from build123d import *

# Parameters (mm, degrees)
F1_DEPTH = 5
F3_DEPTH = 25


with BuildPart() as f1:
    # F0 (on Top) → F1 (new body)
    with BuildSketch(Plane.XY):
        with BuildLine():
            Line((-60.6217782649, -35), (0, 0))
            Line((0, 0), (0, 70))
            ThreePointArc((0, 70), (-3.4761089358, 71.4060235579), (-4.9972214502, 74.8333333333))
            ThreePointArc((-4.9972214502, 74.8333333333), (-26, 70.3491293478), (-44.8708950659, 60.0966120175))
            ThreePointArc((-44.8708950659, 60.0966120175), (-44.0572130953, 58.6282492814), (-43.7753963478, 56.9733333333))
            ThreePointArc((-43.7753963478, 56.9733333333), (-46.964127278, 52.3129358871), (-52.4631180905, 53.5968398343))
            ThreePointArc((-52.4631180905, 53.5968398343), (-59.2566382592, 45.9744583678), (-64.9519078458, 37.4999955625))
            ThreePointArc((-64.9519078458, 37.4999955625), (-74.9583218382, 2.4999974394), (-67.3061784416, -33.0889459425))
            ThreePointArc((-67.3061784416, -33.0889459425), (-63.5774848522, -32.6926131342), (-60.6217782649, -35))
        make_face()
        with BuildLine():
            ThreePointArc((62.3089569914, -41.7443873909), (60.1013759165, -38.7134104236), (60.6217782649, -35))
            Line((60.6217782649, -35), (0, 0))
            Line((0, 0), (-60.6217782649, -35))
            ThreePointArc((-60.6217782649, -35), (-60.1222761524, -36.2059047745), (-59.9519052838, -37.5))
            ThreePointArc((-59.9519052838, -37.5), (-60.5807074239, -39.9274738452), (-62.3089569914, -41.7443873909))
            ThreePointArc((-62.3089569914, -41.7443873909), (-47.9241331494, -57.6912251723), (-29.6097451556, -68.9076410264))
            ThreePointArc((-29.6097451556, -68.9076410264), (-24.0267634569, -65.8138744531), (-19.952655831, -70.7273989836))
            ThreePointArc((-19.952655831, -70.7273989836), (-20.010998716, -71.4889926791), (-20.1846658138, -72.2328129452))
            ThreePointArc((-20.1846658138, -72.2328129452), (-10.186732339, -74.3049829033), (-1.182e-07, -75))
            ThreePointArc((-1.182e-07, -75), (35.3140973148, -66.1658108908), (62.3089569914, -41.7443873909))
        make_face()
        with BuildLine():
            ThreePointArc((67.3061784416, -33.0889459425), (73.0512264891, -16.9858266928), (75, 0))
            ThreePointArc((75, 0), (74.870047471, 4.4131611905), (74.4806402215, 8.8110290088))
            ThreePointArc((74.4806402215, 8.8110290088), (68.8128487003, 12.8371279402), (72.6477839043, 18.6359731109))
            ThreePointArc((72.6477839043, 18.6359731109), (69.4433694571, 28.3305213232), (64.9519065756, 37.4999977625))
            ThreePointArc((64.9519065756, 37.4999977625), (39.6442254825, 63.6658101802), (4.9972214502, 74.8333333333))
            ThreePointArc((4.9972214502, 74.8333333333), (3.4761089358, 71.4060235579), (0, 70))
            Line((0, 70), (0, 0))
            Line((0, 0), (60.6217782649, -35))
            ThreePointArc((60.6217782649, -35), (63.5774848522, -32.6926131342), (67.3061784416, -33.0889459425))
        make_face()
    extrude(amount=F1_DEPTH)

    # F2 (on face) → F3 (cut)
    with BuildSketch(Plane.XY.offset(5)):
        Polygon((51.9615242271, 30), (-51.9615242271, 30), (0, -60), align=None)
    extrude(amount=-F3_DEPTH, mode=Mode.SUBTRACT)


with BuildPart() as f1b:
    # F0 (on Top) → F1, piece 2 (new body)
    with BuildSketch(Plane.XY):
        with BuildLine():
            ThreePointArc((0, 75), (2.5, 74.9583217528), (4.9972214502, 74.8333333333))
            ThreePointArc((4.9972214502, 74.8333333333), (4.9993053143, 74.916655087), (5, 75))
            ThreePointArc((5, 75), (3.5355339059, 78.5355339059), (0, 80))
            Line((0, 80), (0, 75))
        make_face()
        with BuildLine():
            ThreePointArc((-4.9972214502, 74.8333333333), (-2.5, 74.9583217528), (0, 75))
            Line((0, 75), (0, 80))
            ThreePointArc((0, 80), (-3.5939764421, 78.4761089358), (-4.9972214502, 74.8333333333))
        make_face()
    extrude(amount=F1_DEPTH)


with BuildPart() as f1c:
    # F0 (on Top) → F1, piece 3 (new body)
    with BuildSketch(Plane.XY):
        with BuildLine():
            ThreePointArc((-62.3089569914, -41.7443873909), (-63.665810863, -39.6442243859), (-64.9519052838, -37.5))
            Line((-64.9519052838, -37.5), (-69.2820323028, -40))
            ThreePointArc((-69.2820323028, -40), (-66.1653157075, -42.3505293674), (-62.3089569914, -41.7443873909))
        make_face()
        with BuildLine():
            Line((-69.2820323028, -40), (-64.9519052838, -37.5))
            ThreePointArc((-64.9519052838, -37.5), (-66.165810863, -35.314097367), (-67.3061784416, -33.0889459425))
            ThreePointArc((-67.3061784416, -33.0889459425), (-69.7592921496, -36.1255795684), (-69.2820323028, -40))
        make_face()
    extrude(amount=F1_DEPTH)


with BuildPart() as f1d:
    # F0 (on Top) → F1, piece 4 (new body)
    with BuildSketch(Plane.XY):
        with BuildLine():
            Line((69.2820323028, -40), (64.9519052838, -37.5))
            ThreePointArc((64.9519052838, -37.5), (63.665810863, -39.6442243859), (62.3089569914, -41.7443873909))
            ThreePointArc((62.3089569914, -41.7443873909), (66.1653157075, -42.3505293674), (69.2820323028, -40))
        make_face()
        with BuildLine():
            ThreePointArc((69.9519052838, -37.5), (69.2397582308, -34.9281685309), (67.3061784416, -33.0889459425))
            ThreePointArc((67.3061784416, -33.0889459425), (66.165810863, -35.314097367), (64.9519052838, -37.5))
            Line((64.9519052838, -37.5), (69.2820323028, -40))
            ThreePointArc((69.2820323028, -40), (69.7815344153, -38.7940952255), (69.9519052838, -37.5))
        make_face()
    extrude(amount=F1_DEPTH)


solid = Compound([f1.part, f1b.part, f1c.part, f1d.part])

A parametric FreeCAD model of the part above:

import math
import FreeCAD as App
import Part
import Sketcher
from FreeCAD import Vector
Q = App.Units.Quantity

doc = App.newDocument("Part")
body = doc.addObject("PartDesign::Body", "Body")

# Sketch on XY plane
sketch1 = body.newObject("Sketcher::SketchObject", "Sketch")
sketch1.AttachmentSupport = (doc.getObject("XY_Plane"), [""])
sketch1.MapMode = "FlatFace"
sketch1.addGeometry(Part.ArcOfCircle(Part.Circle(Vector(0, 75, 0), Vector(0, 0, 1), 5), math.radians(-178), math.radians(-90)), False)
sketch1.addGeometry(Part.ArcOfCircle(Part.Circle(Vector(0, 0, 0), Vector(0, 0, 1), 75), math.radians(94), math.radians(127)), False)
sketch1.addGeometry(Part.ArcOfCircle(Part.Circle(Vector(-48.8, 57, 0), Vector(0, 0, 1), 5), math.radians(0), math.radians(39)), False)
sketch1.addGeometry(Part.ArcOfCircle(Part.Circle(Vector(-48.8, 57, 0), Vector(0, 0, 1), 5), math.radians(-138), math.radians(0)), False)
sketch1.addGeometry(Part.ArcOfCircle(Part.Circle(Vector(0, 0, 0), Vector(0, 0, 1), 75), math.radians(134.39), math.radians(150)), False)
sketch1.addGeometry(Part.ArcOfCircle(Part.Circle(Vector(0, 0, 0), Vector(0, 0, 1), 75), math.radians(150), math.radians(206)), False)
sketch1.addGeometry(Part.ArcOfCircle(Part.Circle(Vector(-65, -37.5, 0), Vector(0, 0, 1), 5), math.radians(30), math.radians(118)), False)
sketch1.addGeometry(Part.ArcOfCircle(Part.Circle(Vector(-65, -37.5, 0), Vector(0, 0, 1), 5), math.radians(0), math.radians(30)), False)
sketch1.addGeometry(Part.ArcOfCircle(Part.Circle(Vector(-65, -37.5, 0), Vector(0, 0, 1), 5), math.radians(-58), math.radians(0)), False)
sketch1.addGeometry(Part.ArcOfCircle(Part.Circle(Vector(0, 0, 0), Vector(0, 0, 1), 75), math.radians(-146), math.radians(-113)), False)
sketch1.addGeometry(Part.ArcOfCircle(Part.Circle(Vector(-25, -70.7, 0), Vector(0, 0, 1), 5), math.radians(0), math.radians(159)), False)
sketch1.addGeometry(Part.ArcOfCircle(Part.Circle(Vector(-25, -70.7, 0), Vector(0, 0, 1), 5), math.radians(-17.52), math.radians(0)), False)
sketch1.addGeometry(Part.ArcOfCircle(Part.Circle(Vector(0, 0, 0), Vector(0, 0, 1), 75), math.radians(-105.61), math.radians(-90)), False)
sketch1.addGeometry(Part.ArcOfCircle(Part.Circle(Vector(0, 0, 0), Vector(0, 0, 1), 75), math.radians(-90), math.radians(-34)), False)
sketch1.addGeometry(Part.ArcOfCircle(Part.Circle(Vector(65, -37.5, 0), Vector(0, 0, 1), 5), math.radians(150), math.radians(238)), False)
sketch1.addGeometry(Part.ArcOfCircle(Part.Circle(Vector(65, -37.5, 0), Vector(0, 0, 1), 5), math.radians(62), math.radians(150)), False)
sketch1.addGeometry(Part.ArcOfCircle(Part.Circle(Vector(0, 0, 0), Vector(0, 0, 1), 75), math.radians(-26), math.radians(0)), False)
sketch1.addGeometry(Part.ArcOfCircle(Part.Circle(Vector(0, 0, 0), Vector(0, 0, 1), 75), math.radians(0), math.radians(6.75)), False)
sketch1.addGeometry(Part.ArcOfCircle(Part.Circle(Vector(73.7, 13.8, 0), Vector(0, 0, 1), 5), math.radians(102), math.radians(279)), False)
sketch1.addGeometry(Part.ArcOfCircle(Part.Circle(Vector(0, 0, 0), Vector(0, 0, 1), 75), math.radians(14.39), math.radians(30)), False)
sketch1.addGeometry(Part.ArcOfCircle(Part.Circle(Vector(0, 0, 0), Vector(0, 0, 1), 75), math.radians(30), math.radians(86)), False)
sketch1.addGeometry(Part.ArcOfCircle(Part.Circle(Vector(0, 75, 0), Vector(0, 0, 1), 5), math.radians(-90), math.radians(-2)), False)
sketch1.addConstraint(Sketcher.Constraint("Coincident", 0, 1, 1, 1))
sketch1.addConstraint(Sketcher.Constraint("Coincident", 1, 2, 2, 2))
sketch1.addConstraint(Sketcher.Constraint("Tangent", 2, 1, 3, 2))
sketch1.addConstraint(Sketcher.Constraint("Coincident", 3, 1, 4, 1))
sketch1.addConstraint(Sketcher.Constraint("Tangent", 4, 2, 5, 1))
sketch1.addConstraint(Sketcher.Constraint("Coincident", 5, 2, 6, 2))
sketch1.addConstraint(Sketcher.Constraint("Tangent", 6, 1, 7, 2))
sketch1.addConstraint(Sketcher.Constraint("Tangent", 7, 1, 8, 2))
sketch1.addConstraint(Sketcher.Constraint("Coincident", 8, 1, 9, 1))
sketch1.addConstraint(Sketcher.Constraint("Coincident", 9, 2, 10, 2))
sketch1.addConstraint(Sketcher.Constraint("Tangent", 10, 1, 11, 2))
sketch1.addConstraint(Sketcher.Constraint("Coincident", 11, 1, 12, 1))
sketch1.addConstraint(Sketcher.Constraint("Tangent", 12, 2, 13, 1))
sketch1.addConstraint(Sketcher.Constraint("Coincident", 13, 2, 14, 2))
sketch1.addConstraint(Sketcher.Constraint("Tangent", 14, 1, 15, 2))
sketch1.addConstraint(Sketcher.Constraint("Coincident", 15, 1, 16, 1))
sketch1.addConstraint(Sketcher.Constraint("Tangent", 16, 2, 17, 1))
sketch1.addConstraint(Sketcher.Constraint("Coincident", 17, 2, 18, 2))
sketch1.addConstraint(Sketcher.Constraint("Coincident", 18, 1, 19, 1))
sketch1.addConstraint(Sketcher.Constraint("Tangent", 19, 2, 20, 1))
sketch1.addConstraint(Sketcher.Constraint("Coincident", 20, 2, 21, 2))
sketch1.addConstraint(Sketcher.Constraint("Tangent", 21, 1, 0, 2))
sketch1.addConstraint(Sketcher.Constraint("Coincident", 1, 3, -1, 1))
sketch1.addConstraint(Sketcher.Constraint("Coincident", 4, 3, -1, 1))
sketch1.addConstraint(Sketcher.Constraint("Coincident", 9, 3, -1, 1))
sketch1.addConstraint(Sketcher.Constraint("Coincident", 12, 3, -1, 1))
sketch1.addConstraint(Sketcher.Constraint("Coincident", 16, 3, -1, 1))
sketch1.addConstraint(Sketcher.Constraint("Coincident", 19, 3, -1, 1))
sketch1.addConstraint(Sketcher.Constraint("Coincident", 8, 3, 6, 3))
sketch1.addConstraint(Sketcher.Constraint("Equal", 0, 2))
sketch1.addConstraint(Sketcher.Constraint("Equal", 2, 3))
sketch1.addConstraint(Sketcher.Constraint("Equal", 1, 4))
sketch1.addConstraint(Sketcher.Constraint("Equal", 4, 5))
sketch1.addConstraint(Sketcher.Constraint("Equal", 3, 6))
sketch1.addConstraint(Sketcher.Constraint("Equal", 5, 9))
sketch1.addConstraint(Sketcher.Constraint("Equal", 8, 10))
sketch1.addConstraint(Sketcher.Constraint("Equal", 10, 11))
sketch1.addConstraint(Sketcher.Constraint("Equal", 9, 12))
sketch1.addConstraint(Sketcher.Constraint("Equal", 12, 13))
sketch1.addConstraint(Sketcher.Constraint("Equal", 11, 14))
sketch1.addConstraint(Sketcher.Constraint("Equal", 14, 15))
sketch1.addConstraint(Sketcher.Constraint("Equal", 13, 16))
sketch1.addConstraint(Sketcher.Constraint("Equal", 16, 17))
sketch1.addConstraint(Sketcher.Constraint("Equal", 15, 18))
sketch1.addConstraint(Sketcher.Constraint("Equal", 17, 19))
sketch1.addConstraint(Sketcher.Constraint("Equal", 19, 20))
sketch1.addConstraint(Sketcher.Constraint("Equal", 18, 21))
sketch1.addConstraint(Sketcher.Constraint("Symmetric", 6, 3, 14, 3, -2))
sketch1.addConstraint(Sketcher.Constraint("PointOnObject", 0, 3, -2))
sketch1.addConstraint(Sketcher.Constraint("PointOnObject", 12, 2, -2))
sketch1.addConstraint(Sketcher.Constraint("PointOnObject", 16, 2, -1))
sketch1.addConstraint(Sketcher.Constraint("PointOnObject", 21, 1, -2))
sketch1.addConstraint(Sketcher.Constraint("Horizontal", 3, 3, 2, 1))
sketch1.addConstraint(Sketcher.Constraint("Horizontal", 15, 3, 7, 1))
sketch1.addConstraint(Sketcher.Constraint("Horizontal", 11, 3, 10, 1))
sketch1.addConstraint(Sketcher.Constraint("Horizontal", 6, 1, 14, 1))
sketch1.addConstraint(Sketcher.Constraint("Vertical", 15, 3, 19, 2))
sketch1.addConstraint(Sketcher.Constraint("Radius", 0, 5.0))
sketch1.addConstraint(Sketcher.Constraint("Radius", 1, 75.0))
sketch1.addConstraint(Sketcher.Constraint("DistanceY", -1, 1, 0, 3, 75.0))
sketch1.addConstraint(Sketcher.Constraint("DistanceY", 6, 1, -1, 1, 35.0))
sketch1.addConstraint(Sketcher.Constraint("DistanceY", 6, 3, -1, 1, 37.5))
sketch1.addConstraint(Sketcher.Constraint("DistanceY", 2, 3, 0, 1, 17.86))
sketch1.addConstraint(Sketcher.Constraint("DistanceY", 10, 3, -1, 1, 70.727399))
sketch1.addConstraint(Sketcher.Constraint("DistanceX", 2, 3, 1, 2, 3.904501))
sketch1.addConstraint(Sketcher.Constraint("DistanceX", 5, 2, 6, 1, 6.6844))
sketch1.addConstraint(Sketcher.Constraint("DistanceX", 8, 1, 10, 1, 42.356301))
sketch1.addConstraint(Sketcher.Constraint("DistanceX", -1, 1, 17, 2, 74.48064))
sketch1.addConstraint(Sketcher.Constraint("DistanceX", 4, 2, 3, 1, 12.48879))
sketch1.addConstraint(Sketcher.Constraint("DistanceY", 15, 1, 18, 3, 46.843012))
pad1 = body.newObject("PartDesign::Pad", "Pad")
pad1.Profile = sketch1
pad1.Length = 5

# Sketch on XY plane
sketch2 = body.newObject("Sketcher::SketchObject", "Sketch001")
sketch2.AttachmentSupport = (doc.getObject("XY_Plane"), [""])
sketch2.MapMode = "FlatFace"
sketch2.AttachmentOffset = App.Placement(Vector(0, 0, 5), App.Rotation())
sketch2.addGeometry(Part.LineSegment(Vector(52, 30, 0), Vector(-52, 30, 0)), False)
sketch2.addGeometry(Part.LineSegment(Vector(-52, 30, 0), Vector(0, -60, 0)), False)
sketch2.addGeometry(Part.LineSegment(Vector(0, -60, 0), Vector(52, 30, 0)), False)
sketch2.addConstraint(Sketcher.Constraint("Coincident", 0, 2, 1, 1))
sketch2.addConstraint(Sketcher.Constraint("Coincident", 1, 2, 2, 1))
sketch2.addConstraint(Sketcher.Constraint("Coincident", 2, 2, 0, 1))
sketch2.addConstraint(Sketcher.Constraint("Horizontal", 0))
sketch2.addConstraint(Sketcher.Constraint("PointOnObject", 1, 2, -2))
sketch2.addConstraint(Sketcher.Constraint("Equal", 1, 2))
sketch2.addConstraint(Sketcher.Constraint("Angle", 1, Q("-60 deg")))
sketch2.addConstraint(Sketcher.Constraint("DistanceY", -1, 1, 0, 2, 30.0))
sketch2.addConstraint(Sketcher.Constraint("DistanceY", 1, 2, -1, 1, 60.0))
pocket1 = body.newObject("PartDesign::Pocket", "Pocket")
pocket1.Profile = sketch2
pocket1.Length = 25
body2 = doc.addObject("PartDesign::Body", "Body001")

# Sketch on XY plane
sketch3 = body2.newObject("Sketcher::SketchObject", "Sketch002")
sketch3.AttachmentSupport = (doc.getObject("XY_Plane001"), [""])
sketch3.MapMode = "FlatFace"
sketch3.addGeometry(Part.ArcOfCircle(Part.Circle(Vector(0, 0, 0), Vector(0, 0, 1), 75), math.radians(86.18), math.radians(90)), False)
sketch3.addGeometry(Part.ArcOfCircle(Part.Circle(Vector(0, 75, 0), Vector(0, 0, 1), 5), math.radians(-1.91), math.radians(0)), False)
sketch3.addGeometry(Part.ArcOfCircle(Part.Circle(Vector(0, 75, 0), Vector(0, 0, 1), 5), math.radians(0), math.radians(90)), False)
sketch3.addGeometry(Part.ArcOfCircle(Part.Circle(Vector(0, 75, 0), Vector(0, 0, 1), 5), math.radians(90), math.radians(182)), False)
sketch3.addGeometry(Part.ArcOfCircle(Part.Circle(Vector(0, 0, 0), Vector(0, 0, 1), 75), math.radians(90), math.radians(93.82)), False)
sketch3.addConstraint(Sketcher.Constraint("Coincident", 0, 1, 1, 1))
sketch3.addConstraint(Sketcher.Constraint("Tangent", 1, 2, 2, 1))
sketch3.addConstraint(Sketcher.Constraint("Tangent", 2, 2, 3, 1))
sketch3.addConstraint(Sketcher.Constraint("Coincident", 3, 2, 4, 2))
sketch3.addConstraint(Sketcher.Constraint("Tangent", 4, 1, 0, 2))
sketch3.addConstraint(Sketcher.Constraint("Coincident", 0, 3, -1, 1))
sketch3.addConstraint(Sketcher.Constraint("Coincident", 3, 3, 1, 3))
sketch3.addConstraint(Sketcher.Constraint("Coincident", 4, 1, 1, 3))
sketch3.addConstraint(Sketcher.Constraint("Equal", 0, 4))
sketch3.addConstraint(Sketcher.Constraint("PointOnObject", 1, 3, -2))
sketch3.addConstraint(Sketcher.Constraint("PointOnObject", 2, 2, -2))
sketch3.addConstraint(Sketcher.Constraint("Horizontal", 3, 3, 1, 2))
sketch3.addConstraint(Sketcher.Constraint("Radius", 0, 75.0))
sketch3.addConstraint(Sketcher.Constraint("Radius", 1, 5.0))
pad2 = body2.newObject("PartDesign::Pad", "Pad001")
pad2.Profile = sketch3
pad2.Length = 5
body3 = doc.addObject("PartDesign::Body", "Body002")

# Sketch on XY plane
sketch4 = body3.newObject("Sketcher::SketchObject", "Sketch003")
sketch4.AttachmentSupport = (doc.getObject("XY_Plane002"), [""])
sketch4.MapMode = "FlatFace"
sketch4.addGeometry(Part.ArcOfCircle(Part.Circle(Vector(0, 0, 0), Vector(0, 0, 1), 75), math.radians(-150), math.radians(-146.18)), False)
sketch4.addGeometry(Part.ArcOfCircle(Part.Circle(Vector(0, 0, 0), Vector(0, 0, 1), 75), math.radians(-153.82), math.radians(-150)), False)
sketch4.addGeometry(Part.ArcOfCircle(Part.Circle(Vector(-65, -38, 0), Vector(0, 0, 1), 5), math.radians(118), math.radians(210)), False)
sketch4.addGeometry(Part.ArcOfCircle(Part.Circle(Vector(-65, -38, 0), Vector(0, 0, 1), 5), math.radians(-150), math.radians(-58)), False)
sketch4.addConstraint(Sketcher.Constraint("Tangent", 0, 1, 1, 2))
sketch4.addConstraint(Sketcher.Constraint("Coincident", 1, 1, 2, 1))
sketch4.addConstraint(Sketcher.Constraint("Tangent", 2, 2, 3, 1))
sketch4.addConstraint(Sketcher.Constraint("Coincident", 3, 2, 0, 2))
sketch4.addConstraint(Sketcher.Constraint("Coincident", 0, 3, -1, 1))
sketch4.addConstraint(Sketcher.Constraint("Coincident", 0, 1, 2, 3))
sketch4.addConstraint(Sketcher.Constraint("Equal", 0, 1))
sketch4.addConstraint(Sketcher.Constraint("Equal", 2, 3))
sketch4.addConstraint(Sketcher.Constraint("Radius", 0, 75.0))
sketch4.addConstraint(Sketcher.Constraint("Radius", 2, 5.0))
sketch4.addConstraint(Sketcher.Constraint("DistanceY", 2, 2, -1, 1, 40.0))
sketch4.addConstraint(Sketcher.Constraint("DistanceY", 2, 3, -1, 1, 37.5))
pad3 = body3.newObject("PartDesign::Pad", "Pad002")
pad3.Profile = sketch4
pad3.Length = 5
body4 = doc.addObject("PartDesign::Body", "Body003")

# Sketch on XY plane
sketch5 = body4.newObject("Sketcher::SketchObject", "Sketch004")
sketch5.AttachmentSupport = (doc.getObject("XY_Plane003"), [""])
sketch5.MapMode = "FlatFace"
sketch5.addGeometry(Part.ArcOfCircle(Part.Circle(Vector(0, 0, 0), Vector(0, 0, 1), 75), math.radians(-33.82), math.radians(-30)), False)
sketch5.addGeometry(Part.ArcOfCircle(Part.Circle(Vector(65, -37.5, 0), Vector(0, 0, 1), 5), math.radians(-122), math.radians(-30)), False)
sketch5.addGeometry(Part.ArcOfCircle(Part.Circle(Vector(65, -37.5, 0), Vector(0, 0, 1), 5), math.radians(-30), math.radians(0)), False)
sketch5.addGeometry(Part.ArcOfCircle(Part.Circle(Vector(65, -37.5, 0), Vector(0, 0, 1), 5), math.radians(0), math.radians(62)), False)
sketch5.addGeometry(Part.ArcOfCircle(Part.Circle(Vector(0, 0, 0), Vector(0, 0, 1), 75), math.radians(-30), math.radians(-26.18)), False)
sketch5.addConstraint(Sketcher.Constraint("Coincident", 0, 1, 1, 1))
sketch5.addConstraint(Sketcher.Constraint("Tangent", 1, 2, 2, 1))
sketch5.addConstraint(Sketcher.Constraint("Tangent", 2, 2, 3, 1))
sketch5.addConstraint(Sketcher.Constraint("Coincident", 3, 2, 4, 2))
sketch5.addConstraint(Sketcher.Constraint("Tangent", 4, 1, 0, 2))
sketch5.addConstraint(Sketcher.Constraint("Coincident", 0, 3, -1, 1))
sketch5.addConstraint(Sketcher.Constraint("Coincident", 3, 3, 1, 3))
sketch5.addConstraint(Sketcher.Constraint("Coincident", 4, 1, 1, 3))
sketch5.addConstraint(Sketcher.Constraint("Equal", 0, 4))
sketch5.addConstraint(Sketcher.Constraint("Horizontal", 3, 3, 2, 2))
sketch5.addConstraint(Sketcher.Constraint("Radius", 0, 75.0))
sketch5.addConstraint(Sketcher.Constraint("Radius", 1, 5.0))
sketch5.addConstraint(Sketcher.Constraint("DistanceY", 1, 2, -1, 1, 40.0))
sketch5.addConstraint(Sketcher.Constraint("DistanceY", 1, 3, -1, 1, 37.5))
pad4 = body4.newObject("PartDesign::Pad", "Pad003")
pad4.Profile = sketch5
pad4.Length = 5

doc.recompute()
